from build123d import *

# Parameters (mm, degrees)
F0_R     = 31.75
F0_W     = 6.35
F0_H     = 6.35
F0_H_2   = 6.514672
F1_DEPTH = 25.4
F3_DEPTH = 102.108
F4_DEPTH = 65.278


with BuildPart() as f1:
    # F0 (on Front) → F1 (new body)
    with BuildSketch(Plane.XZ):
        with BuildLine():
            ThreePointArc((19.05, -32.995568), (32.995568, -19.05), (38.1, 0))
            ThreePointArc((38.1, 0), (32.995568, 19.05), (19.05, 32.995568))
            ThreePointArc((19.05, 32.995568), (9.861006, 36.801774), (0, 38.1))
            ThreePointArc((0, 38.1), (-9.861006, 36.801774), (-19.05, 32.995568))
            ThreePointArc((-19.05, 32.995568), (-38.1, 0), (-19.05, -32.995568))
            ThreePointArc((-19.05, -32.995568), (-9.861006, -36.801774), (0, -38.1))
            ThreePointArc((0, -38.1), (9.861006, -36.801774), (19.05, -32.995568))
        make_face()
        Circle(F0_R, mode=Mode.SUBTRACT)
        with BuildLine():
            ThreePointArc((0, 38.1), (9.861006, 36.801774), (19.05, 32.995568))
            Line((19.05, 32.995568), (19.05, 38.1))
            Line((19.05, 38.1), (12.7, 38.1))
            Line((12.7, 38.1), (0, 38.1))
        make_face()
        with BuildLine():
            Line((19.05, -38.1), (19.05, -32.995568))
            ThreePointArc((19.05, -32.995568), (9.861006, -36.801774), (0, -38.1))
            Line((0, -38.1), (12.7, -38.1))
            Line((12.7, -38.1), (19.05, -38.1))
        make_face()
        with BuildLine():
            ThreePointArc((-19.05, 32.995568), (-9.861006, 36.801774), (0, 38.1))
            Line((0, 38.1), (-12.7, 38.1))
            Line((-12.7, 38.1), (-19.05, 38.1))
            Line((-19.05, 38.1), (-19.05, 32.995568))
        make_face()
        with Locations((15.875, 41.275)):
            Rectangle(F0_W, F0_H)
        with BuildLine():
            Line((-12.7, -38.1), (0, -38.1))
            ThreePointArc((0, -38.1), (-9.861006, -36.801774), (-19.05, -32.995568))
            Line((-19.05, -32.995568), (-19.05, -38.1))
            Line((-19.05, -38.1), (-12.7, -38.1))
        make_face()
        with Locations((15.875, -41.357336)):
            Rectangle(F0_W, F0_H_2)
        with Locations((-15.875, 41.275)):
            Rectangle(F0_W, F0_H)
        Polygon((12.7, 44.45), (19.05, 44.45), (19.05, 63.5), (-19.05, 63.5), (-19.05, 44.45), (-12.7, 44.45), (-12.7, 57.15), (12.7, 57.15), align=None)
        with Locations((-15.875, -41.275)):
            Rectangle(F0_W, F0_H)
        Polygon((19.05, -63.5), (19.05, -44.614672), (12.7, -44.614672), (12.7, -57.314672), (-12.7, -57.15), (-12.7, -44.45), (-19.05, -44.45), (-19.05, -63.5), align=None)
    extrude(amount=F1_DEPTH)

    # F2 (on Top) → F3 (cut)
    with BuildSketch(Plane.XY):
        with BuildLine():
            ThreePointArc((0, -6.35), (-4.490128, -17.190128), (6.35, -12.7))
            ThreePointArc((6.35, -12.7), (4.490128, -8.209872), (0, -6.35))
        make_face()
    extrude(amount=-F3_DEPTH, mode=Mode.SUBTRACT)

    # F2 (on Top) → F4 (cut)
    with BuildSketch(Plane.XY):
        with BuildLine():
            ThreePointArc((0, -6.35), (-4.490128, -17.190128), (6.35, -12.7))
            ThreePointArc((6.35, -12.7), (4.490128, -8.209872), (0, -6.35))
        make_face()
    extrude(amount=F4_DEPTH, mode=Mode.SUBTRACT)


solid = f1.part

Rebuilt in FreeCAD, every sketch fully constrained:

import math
import FreeCAD as App
import Part
import Sketcher
from FreeCAD import Vector
Q = App.Units.Quantity


def add_polygon(sketch, points):
    """Adds a closed chain of lines whose ends are joined by coincident constraints."""
    first, n = sketch.GeometryCount, len(points)
    for a, b in zip(points, points[1:] + points[:1]):
        sketch.addGeometry(Part.LineSegment(App.Vector(*a, 0), App.Vector(*b, 0)), False)
    for i in range(n):
        sketch.addConstraint(Sketcher.Constraint("Coincident", first + i, 2, first + (i + 1) % n, 1))

doc = App.newDocument("Part")
body = doc.addObject("PartDesign::Body", "Body")

sketch1 = doc.addObject("Sketcher::SketchObject", "Sketch")
body.addObject(sketch1)
sketch1.AttachmentSupport = (doc.XZ_Plane, [""])
sketch1.MapMode = "FlatFace"
sketch1.addGeometry(Part.ArcOfCircle(Part.Circle(Vector(0, 0, 0), Vector(0, 0, 1), 38), math.radians(-60), math.radians(0)), False)
sketch1.addGeometry(Part.ArcOfCircle(Part.Circle(Vector(0, 0, 0), Vector(0, 0, 1), 38), math.radians(0), math.radians(60)), False)
sketch1.addGeometry(Part.LineSegment(Vector(19, 33, 0), Vector(19, 64, 0)), False)
sketch1.addGeometry(Part.LineSegment(Vector(19, 64, 0), Vector(-19, 64, 0)), False)
sketch1.addGeometry(Part.LineSegment(Vector(-19, 64, 0), Vector(-19, 33, 0)), False)
sketch1.addGeometry(Part.ArcOfCircle(Part.Circle(Vector(0, 0, 0), Vector(0, 0, 1), 38), math.radians(120), math.radians(240)), False)
sketch1.addGeometry(Part.LineSegment(Vector(-19, -33, 0), Vector(-19, -64, 0)), False)
sketch1.addGeometry(Part.LineSegment(Vector(-19, -64, 0), Vector(19, -64, 0)), False)
sketch1.addGeometry(Part.LineSegment(Vector(19, -64, 0), Vector(19, -33, 0)), False)
add_polygon(sketch1, [(-13, -38), (13, -38), (13, -57), (-13, -57)])
add_polygon(sketch1, [(13, 38), (-13, 38), (-13, 57), (13, 57)])
sketch1.addGeometry(Part.Circle(Vector(0, 0, 0), Vector(0, 0, 1), 32), False)
sketch1.addConstraint(Sketcher.Constraint("Tangent", 0, 2, 1, 1))
sketch1.addConstraint(Sketcher.Constraint("Coincident", 1, 2, 2, 1))
sketch1.addConstraint(Sketcher.Constraint("Coincident", 2, 2, 3, 1))
sketch1.addConstraint(Sketcher.Constraint("Coincident", 3, 2, 4, 1))
sketch1.addConstraint(Sketcher.Constraint("Coincident", 4, 2, 5, 1))
sketch1.addConstraint(Sketcher.Constraint("Coincident", 5, 2, 6, 1))
sketch1.addConstraint(Sketcher.Constraint("Coincident", 6, 2, 7, 1))
sketch1.addConstraint(Sketcher.Constraint("Coincident", 7, 2, 8, 1))
sketch1.addConstraint(Sketcher.Constraint("Coincident", 8, 2, 0, 1))
sketch1.addConstraint(Sketcher.Constraint("Vertical", 2))
sketch1.addConstraint(Sketcher.Constraint("Horizontal", 3))
sketch1.addConstraint(Sketcher.Constraint("Vertical", 4))
sketch1.addConstraint(Sketcher.Constraint("Vertical", 6))
sketch1.addConstraint(Sketcher.Constraint("Horizontal", 7))
sketch1.addConstraint(Sketcher.Constraint("Vertical", 8))
sketch1.addConstraint(Sketcher.Constraint("Horizontal", 9))
sketch1.addConstraint(Sketcher.Constraint("Vertical", 10))
sketch1.addConstraint(Sketcher.Constraint("Vertical", 12))
sketch1.addConstraint(Sketcher.Constraint("Horizontal", 13))
sketch1.addConstraint(Sketcher.Constraint("Vertical", 14))
sketch1.addConstraint(Sketcher.Constraint("Horizontal", 15))
sketch1.addConstraint(Sketcher.Constraint("Vertical", 16))
sketch1.addConstraint(Sketcher.Constraint("Coincident", 0, 3, -1, 1))
sketch1.addConstraint(Sketcher.Constraint("Coincident", 5, 3, -1, 1))
sketch1.addConstraint(Sketcher.Constraint("Coincident", 17, 3, -1, 1))
sketch1.addConstraint(Sketcher.Constraint("Equal", 0, 1))
sketch1.addConstraint(Sketcher.Constraint("Equal", 1, 5))
sketch1.addConstraint(Sketcher.Constraint("Symmetric", 2, 2, 6, 2, -1, 1))
sketch1.addConstraint(Sketcher.Constraint("Symmetric", 9, 2, 13, 2, -1, 1))
sketch1.addConstraint(Sketcher.Constraint("Symmetric", 11, 2, 15, 2, -1, 1))
sketch1.addConstraint(Sketcher.Constraint("PointOnObject", 0, 2, -1))
sketch1.addConstraint(Sketcher.Constraint("Horizontal", 1, 2, 4, 2))
sketch1.addConstraint(Sketcher.Constraint("Horizontal", 5, 2, 8, 2))
sketch1.addConstraint(Sketcher.Constraint("Vertical", 12, 2, 13, 2))
sketch1.addConstraint(Sketcher.Constraint("Diameter", 17, Q("2.5 in")))
sketch1.addConstraint(Sketcher.Constraint("Radius", 0, Q("1.5 in")))
sketch1.addConstraint(Sketcher.Constraint("DistanceX", 9, 1, 9, 2, Q("1 in")))
sketch1.addConstraint(Sketcher.Constraint("DistanceX", 3, 2, 3, 1, Q("1.5 in")))
sketch1.addConstraint(Sketcher.Constraint("DistanceY", 7, 2, 9, 2, Q("1 in")))
sketch1.addConstraint(Sketcher.Constraint("DistanceY", 12, 1, 12, 2, Q("0.75 in")))
sketch1.addConstraint(Sketcher.Constraint("DistanceY", -1, 1, 2, 2, Q("2.5 in")))
sketch1.addConstraint(Sketcher.Constraint("DistanceY", 10, 2, 10, 1, 19.214672))
pad1 = doc.addObject("PartDesign::Pad", "Pad")
body.addObject(pad1)
pad1.Profile = sketch1
pad1.Length = Q("1 in")

sketch2 = doc.addObject("Sketcher::SketchObject", "Sketch001")
body.addObject(sketch2)
sketch2.AttachmentSupport = (doc.XY_Plane, [""])
sketch2.MapMode = "FlatFace"
sketch2.addGeometry(Part.ArcOfCircle(Part.Circle(Vector(0, -13, 0), Vector(0, 0, 1), 6), math.radians(90), math.radians(360)), False)
sketch2.addGeometry(Part.ArcOfCircle(Part.Circle(Vector(0, -13, 0), Vector(0, 0, 1), 6), math.radians(0), math.radians(90)), False)
sketch2.addConstraint(Sketcher.Constraint("Tangent", 0, 1, 1, 2))
sketch2.addConstraint(Sketcher.Constraint("Coincident", 1, 1, 0, 2))
sketch2.addConstraint(Sketcher.Constraint("PointOnObject", 0, 3, -2))
sketch2.addConstraint(Sketcher.Constraint("PointOnObject", 0, 1, -2))
sketch2.addConstraint(Sketcher.Constraint("Horizontal", 0, 3, 1, 1))
sketch2.addConstraint(Sketcher.Constraint("Radius", 0, Q("0.25 in")))
sketch2.addConstraint(Sketcher.Constraint("DistanceY", 0, 3, -1, 1, Q("0.5 in")))
pocket1 = doc.addObject("PartDesign::Pocket", "Pocket")
body.addObject(pocket1)
pocket1.Profile = sketch2
pocket1.Length = Q("4.02 in")

sketch3 = doc.addObject("Sketcher::SketchObject", "Sketch002")
body.addObject(sketch3)
sketch3.AttachmentSupport = (doc.XY_Plane, [""])
sketch3.MapMode = "FlatFace"
sketch3.addGeometry(Part.ArcOfCircle(Part.Circle(Vector(0, -13, 0), Vector(0, 0, 1), 6), math.radians(90), math.radians(360)), False)
sketch3.addGeometry(Part.ArcOfCircle(Part.Circle(Vector(0, -13, 0), Vector(0, 0, 1), 6), math.radians(0), math.radians(90)), False)
sketch3.addConstraint(Sketcher.Constraint("Tangent", 0, 1, 1, 2))
sketch3.addConstraint(Sketcher.Constraint("Coincident", 1, 1, 0, 2))
sketch3.addConstraint(Sketcher.Constraint("PointOnObject", 0, 3, -2))
sketch3.addConstraint(Sketcher.Constraint("PointOnObject", 0, 1, -2))
sketch3.addConstraint(Sketcher.Constraint("Horizontal", 0, 3, 1, 1))
sketch3.addConstraint(Sketcher.Constraint("Radius", 0, Q("0.25 in")))
sketch3.addConstraint(Sketcher.Constraint("DistanceY", 0, 3, -1, 1, Q("0.5 in")))
pocket2 = doc.addObject("PartDesign::Pocket", "Pocket001")
body.addObject(pocket2)
pocket2.Profile = sketch3
pocket2.Length = Q("2.57 in")
pocket2.Reversed = True

doc.recompute()
